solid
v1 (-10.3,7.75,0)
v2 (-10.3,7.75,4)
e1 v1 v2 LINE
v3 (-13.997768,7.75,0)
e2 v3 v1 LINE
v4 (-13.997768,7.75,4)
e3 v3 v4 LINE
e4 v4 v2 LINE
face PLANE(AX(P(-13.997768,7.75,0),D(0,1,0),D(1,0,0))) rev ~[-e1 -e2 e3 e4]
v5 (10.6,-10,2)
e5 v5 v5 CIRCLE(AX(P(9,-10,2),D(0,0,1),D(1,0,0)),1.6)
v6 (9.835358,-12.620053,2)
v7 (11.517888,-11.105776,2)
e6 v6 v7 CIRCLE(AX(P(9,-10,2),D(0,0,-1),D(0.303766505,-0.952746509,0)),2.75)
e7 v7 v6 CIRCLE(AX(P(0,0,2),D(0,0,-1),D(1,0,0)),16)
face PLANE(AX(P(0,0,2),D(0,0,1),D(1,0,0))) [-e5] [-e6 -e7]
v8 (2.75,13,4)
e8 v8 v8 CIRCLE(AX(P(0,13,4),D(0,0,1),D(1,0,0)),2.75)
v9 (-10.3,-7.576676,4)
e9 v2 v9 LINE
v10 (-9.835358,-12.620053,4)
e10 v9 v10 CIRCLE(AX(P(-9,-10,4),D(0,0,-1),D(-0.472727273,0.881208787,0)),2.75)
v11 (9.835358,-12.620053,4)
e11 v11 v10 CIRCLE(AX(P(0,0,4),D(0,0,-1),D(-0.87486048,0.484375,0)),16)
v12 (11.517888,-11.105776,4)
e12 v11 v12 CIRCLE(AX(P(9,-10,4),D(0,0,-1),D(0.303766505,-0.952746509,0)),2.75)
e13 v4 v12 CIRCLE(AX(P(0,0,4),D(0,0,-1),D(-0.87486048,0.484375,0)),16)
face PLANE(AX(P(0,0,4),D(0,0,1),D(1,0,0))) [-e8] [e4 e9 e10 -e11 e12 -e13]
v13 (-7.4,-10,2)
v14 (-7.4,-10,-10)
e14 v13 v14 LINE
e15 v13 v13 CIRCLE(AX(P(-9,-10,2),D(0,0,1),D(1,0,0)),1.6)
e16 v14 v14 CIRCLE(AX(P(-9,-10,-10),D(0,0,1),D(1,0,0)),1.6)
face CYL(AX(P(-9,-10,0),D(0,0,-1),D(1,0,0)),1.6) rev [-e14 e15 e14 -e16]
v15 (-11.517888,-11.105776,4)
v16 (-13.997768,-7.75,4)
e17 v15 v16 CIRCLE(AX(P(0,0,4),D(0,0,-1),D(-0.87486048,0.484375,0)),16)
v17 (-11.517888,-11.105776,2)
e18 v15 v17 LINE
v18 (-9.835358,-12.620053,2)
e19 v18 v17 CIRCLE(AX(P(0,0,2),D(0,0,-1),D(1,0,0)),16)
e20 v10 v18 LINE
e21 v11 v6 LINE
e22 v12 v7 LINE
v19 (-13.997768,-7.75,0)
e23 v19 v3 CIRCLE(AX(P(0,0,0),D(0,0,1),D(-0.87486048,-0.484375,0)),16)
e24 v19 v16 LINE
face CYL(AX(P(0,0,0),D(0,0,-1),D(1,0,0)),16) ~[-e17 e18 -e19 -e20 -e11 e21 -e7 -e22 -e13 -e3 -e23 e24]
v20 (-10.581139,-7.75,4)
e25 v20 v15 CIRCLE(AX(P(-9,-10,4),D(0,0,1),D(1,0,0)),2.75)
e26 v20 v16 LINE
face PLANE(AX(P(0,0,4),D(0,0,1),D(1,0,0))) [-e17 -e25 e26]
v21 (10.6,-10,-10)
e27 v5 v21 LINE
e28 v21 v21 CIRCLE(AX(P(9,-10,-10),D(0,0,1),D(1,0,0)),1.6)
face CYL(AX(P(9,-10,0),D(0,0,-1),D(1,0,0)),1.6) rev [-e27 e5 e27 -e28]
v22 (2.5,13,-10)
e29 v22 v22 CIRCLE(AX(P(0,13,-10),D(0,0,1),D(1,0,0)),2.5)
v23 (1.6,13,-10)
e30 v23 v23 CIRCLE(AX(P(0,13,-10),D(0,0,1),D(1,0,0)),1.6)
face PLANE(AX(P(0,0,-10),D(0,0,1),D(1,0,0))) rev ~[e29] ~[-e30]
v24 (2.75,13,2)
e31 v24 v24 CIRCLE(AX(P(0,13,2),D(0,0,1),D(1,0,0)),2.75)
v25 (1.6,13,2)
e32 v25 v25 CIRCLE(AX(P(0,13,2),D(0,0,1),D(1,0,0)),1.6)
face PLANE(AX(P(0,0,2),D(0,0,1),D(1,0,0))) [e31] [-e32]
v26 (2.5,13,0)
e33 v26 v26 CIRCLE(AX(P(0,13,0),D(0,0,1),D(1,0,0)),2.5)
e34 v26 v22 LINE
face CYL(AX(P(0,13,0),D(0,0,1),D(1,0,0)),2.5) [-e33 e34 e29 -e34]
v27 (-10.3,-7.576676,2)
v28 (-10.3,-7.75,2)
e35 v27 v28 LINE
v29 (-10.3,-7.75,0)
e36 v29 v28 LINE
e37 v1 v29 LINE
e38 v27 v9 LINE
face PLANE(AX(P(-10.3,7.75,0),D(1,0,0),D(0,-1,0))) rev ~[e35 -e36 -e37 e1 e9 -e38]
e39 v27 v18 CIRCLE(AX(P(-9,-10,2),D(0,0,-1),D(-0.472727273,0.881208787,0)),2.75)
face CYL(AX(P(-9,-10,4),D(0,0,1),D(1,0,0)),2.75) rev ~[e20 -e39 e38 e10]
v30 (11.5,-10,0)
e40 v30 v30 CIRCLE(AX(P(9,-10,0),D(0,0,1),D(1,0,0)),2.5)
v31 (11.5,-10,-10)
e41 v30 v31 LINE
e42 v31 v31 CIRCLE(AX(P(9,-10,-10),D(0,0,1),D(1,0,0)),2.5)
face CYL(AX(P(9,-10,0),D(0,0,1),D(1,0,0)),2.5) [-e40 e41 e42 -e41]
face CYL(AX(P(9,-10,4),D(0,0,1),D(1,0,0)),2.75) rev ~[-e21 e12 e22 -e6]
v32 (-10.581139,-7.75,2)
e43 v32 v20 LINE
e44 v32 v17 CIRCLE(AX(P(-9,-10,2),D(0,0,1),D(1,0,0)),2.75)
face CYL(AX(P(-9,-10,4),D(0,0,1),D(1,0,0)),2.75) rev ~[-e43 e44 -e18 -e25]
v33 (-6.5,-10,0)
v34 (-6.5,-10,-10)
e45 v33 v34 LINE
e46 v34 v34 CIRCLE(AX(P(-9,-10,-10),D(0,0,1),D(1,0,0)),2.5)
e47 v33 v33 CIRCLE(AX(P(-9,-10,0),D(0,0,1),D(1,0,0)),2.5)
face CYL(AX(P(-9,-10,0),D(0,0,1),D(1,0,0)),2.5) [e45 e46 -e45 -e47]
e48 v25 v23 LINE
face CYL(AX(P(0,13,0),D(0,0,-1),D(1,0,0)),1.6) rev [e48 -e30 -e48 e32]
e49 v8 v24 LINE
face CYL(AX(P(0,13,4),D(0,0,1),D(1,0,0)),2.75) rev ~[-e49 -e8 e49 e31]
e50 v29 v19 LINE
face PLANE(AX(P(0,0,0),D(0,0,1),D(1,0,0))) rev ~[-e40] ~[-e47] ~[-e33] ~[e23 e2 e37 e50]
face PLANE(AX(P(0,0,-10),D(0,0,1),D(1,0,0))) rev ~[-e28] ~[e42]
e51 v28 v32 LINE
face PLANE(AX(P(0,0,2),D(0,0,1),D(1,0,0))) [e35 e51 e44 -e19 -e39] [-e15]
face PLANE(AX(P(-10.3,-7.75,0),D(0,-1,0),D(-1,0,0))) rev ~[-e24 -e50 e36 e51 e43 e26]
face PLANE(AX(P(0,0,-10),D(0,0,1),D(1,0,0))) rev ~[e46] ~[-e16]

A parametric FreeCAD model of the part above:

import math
import FreeCAD as App
import Part
import Sketcher

doc = App.newDocument("Part")
params = doc.addObject("Spreadsheet::Sheet", "Params")
for row, (alias, value) in enumerate([
    ("sketch1_radius", "16 mm"),
    ("sketch1_diameter", "3.2 mm"),
    ("sketch1_height", "15.5 mm"),
    ("pad1_length", "4 mm"),
    ("sketch2_diameter", "5 mm"),
    ("sketch2_diameter2", "3.2 mm"),
    ("pad2_length", "10 mm"),
    ("sketch3_diameter", "5.5 mm"),
    ("sketch3_diameter2", "3.2 mm"),
    ("pocket1_length", "2 mm"),
], start=1):
    params.set(f"A{row}", alias)
    params.set(f"B{row}", "=" + value)
    params.setAlias(f"B{row}", alias)

body = doc.addObject("PartDesign::Body", "Body")

sketch1 = body.newObject("Sketcher::SketchObject", "Sketch")
sketch1.AttachmentSupport = (doc.getObject("XY_Plane"), [""])
sketch1.MapMode = "FlatFace"
sketch1.addGeometry([
    Part.ArcOfCircle(Part.Circle(App.Vector(0, 0, 0), App.Vector(0, 0, 1), 16), math.radians(-151.028468), math.radians(151.028468)),
    Part.LineSegment(App.Vector(-13.997768, 7.75, 0), App.Vector(-10.3, 7.75, 0)),
    Part.LineSegment(App.Vector(-10.3, 7.75, 0), App.Vector(-10.3, -7.75, 0)),
    Part.LineSegment(App.Vector(-10.3, -7.75, 0), App.Vector(-13.997768, -7.75, 0)),
    Part.Circle(App.Vector(-9, -10, 0), App.Vector(0, 0, 1), 1.6),
    Part.Circle(App.Vector(9, -10, 0), App.Vector(0, 0, 1), 1.6),
    Part.Circle(App.Vector(0, 13, 0), App.Vector(0, 0, 1), 1.6),
], False)
sketch1.addConstraint([
    Sketcher.Constraint("Coincident", 0, 2, 1, 1),
    Sketcher.Constraint("Coincident", 1, 2, 2, 1),
    Sketcher.Constraint("Coincident", 2, 2, 3, 1),
    Sketcher.Constraint("Coincident", 3, 2, 0, 1),
    Sketcher.Constraint("Horizontal", 1),
    Sketcher.Constraint("Vertical", 2),
    Sketcher.Constraint("Horizontal", 3),
    Sketcher.Constraint("Coincident", 0, 3, -1, 1),
    Sketcher.Constraint("Equal", 4, 5),
    Sketcher.Constraint("Equal", 5, 6),
    Sketcher.Constraint("Symmetric", 4, 3, 5, 3, -2),
    Sketcher.Constraint("PointOnObject", 6, 3, -2),
    Sketcher.Constraint("Vertical", 0, 2, 3, 2),
    Sketcher.Constraint("Radius", 0, 16.0),
    Sketcher.Constraint("Diameter", 4, 3.2),
    Sketcher.Constraint("DistanceY", 2, 2, 2, 1, 15.5),
    Sketcher.Constraint("DistanceX", 4, 3, -1, 1, 9.0),
    Sketcher.Constraint("DistanceY", -1, 1, 6, 3, 13.0),
    Sketcher.Constraint("DistanceY", 4, 3, 6, 3, 23.0),
    Sketcher.Constraint("DistanceX", 1, 2, -1, 1, 10.3),
])
sketch1.setExpression("Constraints[13]", "Params.sketch1_radius")
sketch1.setExpression("Constraints[14]", "Params.sketch1_diameter")
sketch1.setExpression("Constraints[15]", "Params.sketch1_height")
pad1 = body.newObject("PartDesign::Pad", "Pad")
pad1.Profile = sketch1
pad1.setExpression("Length", "Params.pad1_length")

sketch2 = body.newObject("Sketcher::SketchObject", "Sketch001")
sketch2.AttachmentSupport = (doc.getObject("XY_Plane"), [""])
sketch2.MapMode = "FlatFace"
sketch2.addGeometry([
    Part.Circle(App.Vector(0, 13, 0), App.Vector(0, 0, 1), 2.5),
    Part.Circle(App.Vector(0, 13, 0), App.Vector(0, 0, 1), 1.6),
    Part.Circle(App.Vector(-9, -10, 0), App.Vector(0, 0, 1), 2.5),
    Part.Circle(App.Vector(-9, -10, 0), App.Vector(0, 0, 1), 1.6),
    Part.Circle(App.Vector(9, -10, 0), App.Vector(0, 0, 1), 2.5),
    Part.Circle(App.Vector(9, -10, 0), App.Vector(0, 0, 1), 1.6),
], False)
sketch2.addConstraint([
    Sketcher.Constraint("Coincident", 1, 3, 0, 3),
    Sketcher.Constraint("Coincident", 3, 3, 2, 3),
    Sketcher.Constraint("Coincident", 5, 3, 4, 3),
    Sketcher.Constraint("Equal", 0, 2),
    Sketcher.Constraint("Equal", 1, 3),
    Sketcher.Constraint("Equal", 2, 4),
    Sketcher.Constraint("Equal", 3, 5),
    Sketcher.Constraint("Symmetric", 2, 3, 4, 3, -2),
    Sketcher.Constraint("PointOnObject", 0, 3, -2),
    Sketcher.Constraint("Diameter", 0, 5.0),
    Sketcher.Constraint("Diameter", 1, 3.2),
    Sketcher.Constraint("DistanceY", -1, 1, 0, 3, 13.0),
    Sketcher.Constraint("DistanceX", 2, 3, -1, 1, 9.0),
    Sketcher.Constraint("DistanceY", 2, 3, 0, 3, 23.0),
])
sketch2.setExpression("Constraints[9]", "Params.sketch2_diameter")
sketch2.setExpression("Constraints[10]", "Params.sketch2_diameter2")
pad2 = body.newObject("PartDesign::Pad", "Pad001")
pad2.Profile = sketch2
pad2.setExpression("Length", "Params.pad2_length")
pad2.Reversed = True

sketch3 = body.newObject("Sketcher::SketchObject", "Sketch002")
sketch3.AttachmentSupport = (doc.getObject("XY_Plane"), [""])
sketch3.MapMode = "FlatFace"
sketch3.AttachmentOffset = App.Placement(App.Vector(0, 0, 4), App.Rotation())
sketch3.addGeometry([
    Part.Circle(App.Vector(0, 13, 0), App.Vector(0, 0, 1), 2.75),
    Part.Circle(App.Vector(0, 13, 0), App.Vector(0, 0, 1), 1.6),
    Part.Circle(App.Vector(-9, -10, 0), App.Vector(0, 0, 1), 2.75),
    Part.Circle(App.Vector(-9, -10, 0), App.Vector(0, 0, 1), 1.6),
    Part.Circle(App.Vector(9, -10, 0), App.Vector(0, 0, 1), 2.75),
    Part.Circle(App.Vector(9, -10, 0), App.Vector(0, 0, 1), 1.6),
], False)
sketch3.addConstraint([
    Sketcher.Constraint("Coincident", 1, 3, 0, 3),
    Sketcher.Constraint("Coincident", 3, 3, 2, 3),
    Sketcher.Constraint("Coincident", 5, 3, 4, 3),
    Sketcher.Constraint("Equal", 0, 2),
    Sketcher.Constraint("Equal", 1, 3),
    Sketcher.Constraint("Equal", 2, 4),
    Sketcher.Constraint("Equal", 3, 5),
    Sketcher.Constraint("Symmetric", 2, 3, 4, 3, -2),
    Sketcher.Constraint("PointOnObject", 0, 3, -2),
    Sketcher.Constraint("Diameter", 0, 5.5),
    Sketcher.Constraint("Diameter", 1, 3.2),
    Sketcher.Constraint("DistanceY", -1, 1, 0, 3, 13.0),
    Sketcher.Constraint("DistanceX", 2, 3, -1, 1, 9.0),
    Sketcher.Constraint("DistanceY", 2, 3, -1, 1, 10.0),
])
sketch3.setExpression("Constraints[9]", "Params.sketch3_diameter")
sketch3.setExpression("Constraints[10]", "Params.sketch3_diameter2")
pocket1 = body.newObject("PartDesign::Pocket", "Pocket")
pocket1.Profile = sketch3
pocket1.setExpression("Length", "Params.pocket1_length")

doc.recompute()
